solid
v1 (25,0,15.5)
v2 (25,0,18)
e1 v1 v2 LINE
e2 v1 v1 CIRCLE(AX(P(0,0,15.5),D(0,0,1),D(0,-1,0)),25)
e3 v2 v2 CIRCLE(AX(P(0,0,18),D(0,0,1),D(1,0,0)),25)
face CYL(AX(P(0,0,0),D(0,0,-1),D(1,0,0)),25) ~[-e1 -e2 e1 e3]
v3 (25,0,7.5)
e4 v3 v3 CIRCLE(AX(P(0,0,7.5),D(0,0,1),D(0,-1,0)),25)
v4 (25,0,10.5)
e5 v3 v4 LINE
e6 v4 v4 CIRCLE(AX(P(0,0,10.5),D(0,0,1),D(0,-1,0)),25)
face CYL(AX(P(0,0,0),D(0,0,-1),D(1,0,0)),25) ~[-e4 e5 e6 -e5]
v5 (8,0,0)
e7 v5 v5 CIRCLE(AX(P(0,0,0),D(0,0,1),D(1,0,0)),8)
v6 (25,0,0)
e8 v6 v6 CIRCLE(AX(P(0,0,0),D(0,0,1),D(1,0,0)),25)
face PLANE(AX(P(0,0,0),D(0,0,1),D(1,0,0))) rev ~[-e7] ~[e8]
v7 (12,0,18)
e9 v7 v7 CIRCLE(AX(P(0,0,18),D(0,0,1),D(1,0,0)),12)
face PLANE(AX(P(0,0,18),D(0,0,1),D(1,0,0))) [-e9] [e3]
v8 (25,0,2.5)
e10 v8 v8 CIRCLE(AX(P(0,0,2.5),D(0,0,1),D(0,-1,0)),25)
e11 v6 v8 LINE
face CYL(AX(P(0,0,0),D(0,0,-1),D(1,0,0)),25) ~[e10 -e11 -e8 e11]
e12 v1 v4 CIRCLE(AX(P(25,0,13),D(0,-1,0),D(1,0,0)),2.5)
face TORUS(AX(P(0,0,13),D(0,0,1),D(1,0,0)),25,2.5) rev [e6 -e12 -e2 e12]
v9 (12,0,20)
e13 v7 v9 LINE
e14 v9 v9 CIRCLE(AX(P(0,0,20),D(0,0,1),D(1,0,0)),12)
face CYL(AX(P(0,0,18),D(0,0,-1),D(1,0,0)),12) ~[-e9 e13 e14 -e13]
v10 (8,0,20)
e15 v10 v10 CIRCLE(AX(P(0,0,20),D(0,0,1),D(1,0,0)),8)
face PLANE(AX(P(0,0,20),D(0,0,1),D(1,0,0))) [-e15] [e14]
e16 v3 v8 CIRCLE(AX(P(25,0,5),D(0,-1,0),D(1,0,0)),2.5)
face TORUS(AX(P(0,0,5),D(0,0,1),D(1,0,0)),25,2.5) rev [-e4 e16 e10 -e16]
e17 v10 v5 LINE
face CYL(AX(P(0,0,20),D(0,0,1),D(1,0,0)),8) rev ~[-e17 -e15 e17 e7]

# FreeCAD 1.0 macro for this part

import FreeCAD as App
import Part
import Sketcher
from FreeCAD import Vector

doc = App.newDocument("Part")
params = doc.addObject("Spreadsheet::Sheet", "Params")
for row, (alias, value) in enumerate([
    ("sketch1_diameter", "50 mm"),
    ("pad1_length", "18 mm"),
    ("sketch2_diameter", "24 mm"),
    ("pad2_length", "2 mm"),
    ("sketch3_diameter", "16 mm"),
    ("pocket1_length", "25 mm"),
    ("sketch4_diameter", "5 mm"),
    ("groove_angle", "360 deg"),
], start=1):
    params.set(f"A{row}", alias)
    params.set(f"B{row}", "=" + value)
    params.setAlias(f"B{row}", alias)

body = doc.addObject("PartDesign::Body", "Body")

sketch1 = doc.addObject("Sketcher::SketchObject", "Sketch")
body.addObject(sketch1)
sketch1.AttachmentSupport = (doc.XY_Plane, [""])
sketch1.MapMode = "FlatFace"
sketch1.addGeometry(Part.Circle(Vector(0, 0, 0), Vector(0, 0, 1), 25), False)
sketch1.addConstraint([
    Sketcher.Constraint("Coincident", 0, 3, -1, 1),
    Sketcher.Constraint("Diameter", 0, 50.0),
])
sketch1.setExpression("Constraints[1]", "Params.sketch1_diameter")
pad1 = doc.addObject("PartDesign::Pad", "Pad")
body.addObject(pad1)
pad1.Profile = sketch1
pad1.setExpression("Length", "Params.pad1_length")

sketch2 = doc.addObject("Sketcher::SketchObject", "Sketch001")
body.addObject(sketch2)
sketch2.AttachmentSupport = (doc.XY_Plane, [""])
sketch2.MapMode = "FlatFace"
sketch2.AttachmentOffset = App.Placement(Vector(0, 0, 18), App.Rotation())
sketch2.addGeometry(Part.Circle(Vector(0, 0, 0), Vector(0, 0, 1), 12), False)
sketch2.addConstraint([
    Sketcher.Constraint("Coincident", 0, 3, -1, 1),
    Sketcher.Constraint("Diameter", 0, 24.0),
])
sketch2.setExpression("Constraints[1]", "Params.sketch2_diameter")
pad2 = doc.addObject("PartDesign::Pad", "Pad001")
body.addObject(pad2)
pad2.Profile = sketch2
pad2.setExpression("Length", "Params.pad2_length")

sketch3 = doc.addObject("Sketcher::SketchObject", "Sketch002")
body.addObject(sketch3)
sketch3.AttachmentSupport = (doc.XY_Plane, [""])
sketch3.MapMode = "FlatFace"
sketch3.AttachmentOffset = App.Placement(Vector(0, 0, 20), App.Rotation())
sketch3.addGeometry(Part.Circle(Vector(0, 0, 0), Vector(0, 0, 1), 8), False)
sketch3.addConstraint([
    Sketcher.Constraint("Coincident", 0, 3, -1, 1),
    Sketcher.Constraint("Diameter", 0, 16.0),
])
sketch3.setExpression("Constraints[1]", "Params.sketch3_diameter")
pocket1 = doc.addObject("PartDesign::Pocket", "Pocket")
body.addObject(pocket1)
pocket1.Profile = sketch3
pocket1.setExpression("Length", "Params.pocket1_length")

sketch4 = doc.addObject("Sketcher::SketchObject", "Sketch003")
body.addObject(sketch4)
sketch4.AttachmentSupport = (doc.XZ_Plane, [""])
sketch4.MapMode = "FlatFace"
sketch4.addGeometry([
    Part.Circle(Vector(25, 13, 0), Vector(0, 0, 1), 2.5),
    Part.Circle(Vector(25, 5, 0), Vector(0, 0, 1), 2.5),
], False)
sketch4.addConstraint([
    Sketcher.Constraint("Equal", 0, 1),
    Sketcher.Constraint("Vertical", 0, 3, 1, 3),
    Sketcher.Constraint("Diameter", 0, 5.0),
    Sketcher.Constraint("DistanceX", -1, 1, 0, 3, 25.0),
    Sketcher.Constraint("DistanceY", -1, 1, 0, 3, 13.0),
    Sketcher.Constraint("DistanceY", -1, 1, 1, 3, 5.0),
])
sketch4.setExpression("Constraints[2]", "Params.sketch4_diameter")
groove = doc.addObject("PartDesign::Groove", "Groove")
body.addObject(groove)
groove.Profile = sketch4
groove.ReferenceAxis = (sketch4, ["V_Axis"])
groove.setExpression("Angle", "Params.groove_angle")

doc.recompute()
